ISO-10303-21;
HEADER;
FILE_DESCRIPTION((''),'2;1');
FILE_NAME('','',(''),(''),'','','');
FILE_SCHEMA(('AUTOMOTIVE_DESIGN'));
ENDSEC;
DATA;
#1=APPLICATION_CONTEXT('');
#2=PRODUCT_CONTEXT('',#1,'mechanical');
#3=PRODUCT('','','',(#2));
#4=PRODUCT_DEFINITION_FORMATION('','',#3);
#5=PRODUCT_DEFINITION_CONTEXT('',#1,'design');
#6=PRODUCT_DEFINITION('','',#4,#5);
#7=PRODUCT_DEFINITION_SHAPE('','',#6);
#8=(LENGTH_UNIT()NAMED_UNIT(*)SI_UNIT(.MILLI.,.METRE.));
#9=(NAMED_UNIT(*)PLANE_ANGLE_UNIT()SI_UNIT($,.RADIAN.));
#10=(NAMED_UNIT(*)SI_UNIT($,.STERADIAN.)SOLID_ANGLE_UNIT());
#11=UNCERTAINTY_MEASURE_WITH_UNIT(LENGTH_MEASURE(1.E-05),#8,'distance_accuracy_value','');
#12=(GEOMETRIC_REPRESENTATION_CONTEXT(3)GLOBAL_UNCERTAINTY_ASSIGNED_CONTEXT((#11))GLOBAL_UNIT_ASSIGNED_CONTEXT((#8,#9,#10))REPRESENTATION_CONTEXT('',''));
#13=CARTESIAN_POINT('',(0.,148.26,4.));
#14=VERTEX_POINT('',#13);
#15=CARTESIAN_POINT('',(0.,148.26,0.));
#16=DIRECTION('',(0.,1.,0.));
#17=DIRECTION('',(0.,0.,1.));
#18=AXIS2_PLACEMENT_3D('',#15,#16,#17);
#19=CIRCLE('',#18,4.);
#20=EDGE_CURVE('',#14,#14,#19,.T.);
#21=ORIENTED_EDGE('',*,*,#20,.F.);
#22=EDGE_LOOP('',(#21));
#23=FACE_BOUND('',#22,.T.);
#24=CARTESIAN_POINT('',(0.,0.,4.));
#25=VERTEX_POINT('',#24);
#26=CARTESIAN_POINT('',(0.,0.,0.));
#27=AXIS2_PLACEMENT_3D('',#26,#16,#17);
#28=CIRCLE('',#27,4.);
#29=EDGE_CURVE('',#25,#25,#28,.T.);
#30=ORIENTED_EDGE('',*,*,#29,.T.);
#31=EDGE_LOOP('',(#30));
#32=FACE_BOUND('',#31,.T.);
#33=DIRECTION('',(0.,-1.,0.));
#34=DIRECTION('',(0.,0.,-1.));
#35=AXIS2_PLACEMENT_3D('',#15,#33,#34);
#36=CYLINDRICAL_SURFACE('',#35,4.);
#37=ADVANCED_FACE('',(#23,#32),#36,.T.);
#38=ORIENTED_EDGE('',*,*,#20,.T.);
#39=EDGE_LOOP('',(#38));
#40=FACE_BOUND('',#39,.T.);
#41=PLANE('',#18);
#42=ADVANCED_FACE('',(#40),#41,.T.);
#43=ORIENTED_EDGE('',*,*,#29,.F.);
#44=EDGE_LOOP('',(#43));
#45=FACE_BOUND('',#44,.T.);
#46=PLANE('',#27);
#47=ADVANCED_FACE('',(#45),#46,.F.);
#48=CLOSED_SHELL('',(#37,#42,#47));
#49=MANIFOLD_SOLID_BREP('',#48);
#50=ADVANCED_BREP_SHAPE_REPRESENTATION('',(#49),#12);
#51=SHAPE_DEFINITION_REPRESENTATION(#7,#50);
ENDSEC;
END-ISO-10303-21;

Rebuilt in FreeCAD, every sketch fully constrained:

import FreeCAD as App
import Part
import Sketcher
from FreeCAD import Vector

doc = App.newDocument("Part")
body = doc.addObject("PartDesign::Body", "Body")

sketch1 = body.newObject("Sketcher::SketchObject", "Sketch")
sketch1.AttachmentSupport = (doc.getObject("XZ_Plane"), [""])
sketch1.MapMode = "FlatFace"
sketch1.addGeometry(Part.Circle(Vector(0, 0, 0), Vector(0, 0, 1), 4), False)
sketch1.addConstraint(Sketcher.Constraint("Coincident", 0, 3, -1, 1))
sketch1.addConstraint(Sketcher.Constraint("Diameter", 0, 8.0))
pad1 = body.newObject("PartDesign::Pad", "Pad")
pad1.Profile = sketch1
pad1.Length = 148.26
pad1.Reversed = True

doc.recompute()
